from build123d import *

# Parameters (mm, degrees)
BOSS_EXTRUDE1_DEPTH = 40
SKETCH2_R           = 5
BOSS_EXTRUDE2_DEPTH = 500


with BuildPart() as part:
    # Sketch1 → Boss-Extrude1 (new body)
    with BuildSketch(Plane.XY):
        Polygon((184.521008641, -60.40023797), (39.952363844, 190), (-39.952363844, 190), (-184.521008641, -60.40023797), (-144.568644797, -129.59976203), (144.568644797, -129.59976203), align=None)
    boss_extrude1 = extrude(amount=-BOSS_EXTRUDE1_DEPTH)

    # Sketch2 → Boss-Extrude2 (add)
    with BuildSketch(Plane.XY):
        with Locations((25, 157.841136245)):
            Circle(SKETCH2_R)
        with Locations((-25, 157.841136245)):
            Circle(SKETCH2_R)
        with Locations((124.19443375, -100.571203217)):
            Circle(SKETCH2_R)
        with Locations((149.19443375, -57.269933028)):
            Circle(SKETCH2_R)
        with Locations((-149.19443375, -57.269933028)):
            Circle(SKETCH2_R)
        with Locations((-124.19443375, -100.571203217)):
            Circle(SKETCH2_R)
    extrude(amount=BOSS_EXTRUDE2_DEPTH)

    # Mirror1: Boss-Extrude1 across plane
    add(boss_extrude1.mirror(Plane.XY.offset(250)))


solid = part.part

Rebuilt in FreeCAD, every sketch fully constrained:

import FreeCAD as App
import Part
import Sketcher
from FreeCAD import Vector
Q = App.Units.Quantity

doc = App.newDocument("Part")
body = doc.addObject("PartDesign::Body", "Body")

# Sketch on XY plane
sketch1 = doc.addObject("Sketcher::SketchObject", "Sketch")
body.addObject(sketch1)
sketch1.AttachmentSupport = (doc.XY_Plane, [""])
sketch1.MapMode = "FlatFace"
sketch1.addGeometry([
    Part.LineSegment(Vector(185, -60, 0), Vector(40, 190, 0)),  # 0
    Part.LineSegment(Vector(40, 190, 0), Vector(-40, 190, 0)),  # 1
    Part.LineSegment(Vector(-40, 190, 0), Vector(-185, -60, 0)),  # 2
    Part.LineSegment(Vector(-185, -60, 0), Vector(-145, -130, 0)),  # 3
    Part.LineSegment(Vector(-145, -130, 0), Vector(145, -130, 0)),  # 4
    Part.LineSegment(Vector(145, -130, 0), Vector(185, -60, 0)),  # 5
], False)
sketch1.addConstraint([
    Sketcher.Constraint("Coincident", 0, 2, 1, 1),
    Sketcher.Constraint("Coincident", 1, 2, 2, 1),
    Sketcher.Constraint("Coincident", 2, 2, 3, 1),
    Sketcher.Constraint("Coincident", 3, 2, 4, 1),
    Sketcher.Constraint("Coincident", 4, 2, 5, 1),
    Sketcher.Constraint("Coincident", 5, 2, 0, 1),
    Sketcher.Constraint("Horizontal", 1),
    Sketcher.Constraint("Horizontal", 4),
    Sketcher.Constraint("Symmetric", 2, 2, 5, 2, -2),
    Sketcher.Constraint("Parallel", 0, 3),
    Sketcher.Constraint("Parallel", 2, 5),
    Sketcher.Constraint("Equal", 0, 2),
    Sketcher.Constraint("Angle", 0, Q("120 deg")),
    Sketcher.Constraint("DistanceY", -1, 1, 0, 2, 190.0),
    Sketcher.Constraint("DistanceX", 4, 1, 4, 2, 289.13729),
    Sketcher.Constraint("Distance", 0, 289.13729),
    Sketcher.Constraint("DistanceX", 1, 2, 1, 1, 79.904728),
])
pad1 = doc.addObject("PartDesign::Pad", "Pad")
body.addObject(pad1)
pad1.Profile = sketch1
pad1.Length = 40
pad1.Reversed = True

# Sketch on XY plane
sketch2 = doc.addObject("Sketcher::SketchObject", "Sketch001")
body.addObject(sketch2)
sketch2.AttachmentSupport = (doc.XY_Plane, [""])
sketch2.MapMode = "FlatFace"
sketch2.addGeometry([
    Part.Circle(Vector(25, 158, 0), Vector(0, 0, 1), 5),  # 0
    Part.Circle(Vector(-25, 158, 0), Vector(0, 0, 1), 5),  # 1
    Part.Circle(Vector(124, -101, 0), Vector(0, 0, 1), 5),  # 2
    Part.Circle(Vector(149, -57, 0), Vector(0, 0, 1), 5),  # 3
    Part.Circle(Vector(-149, -57, 0), Vector(0, 0, 1), 5),  # 4
    Part.Circle(Vector(-124, -101, 0), Vector(0, 0, 1), 5),  # 5
], False)
sketch2.addConstraint([
    Sketcher.Constraint("Equal", 0, 1),
    Sketcher.Constraint("Equal", 1, 2),
    Sketcher.Constraint("Equal", 2, 3),
    Sketcher.Constraint("Equal", 3, 4),
    Sketcher.Constraint("Equal", 4, 5),
    Sketcher.Constraint("Symmetric", 0, 3, 1, 3, -2),
    Sketcher.Constraint("Symmetric", 3, 3, 4, 3, -2),
    Sketcher.Constraint("Symmetric", 2, 3, 5, 3, -2),
    Sketcher.Constraint("Diameter", 0, 10.0),
    Sketcher.Constraint("DistanceX", -1, 1, 0, 3, 25.0),
    Sketcher.Constraint("DistanceX", 2, 3, 3, 3, 25.0),
    Sketcher.Constraint("DistanceY", 2, 3, 0, 3, 258.412339),
    Sketcher.Constraint("DistanceY", 2, 3, 3, 3, 43.30127),
    Sketcher.Constraint("DistanceY", -1, 1, 0, 3, 157.841136),
    Sketcher.Constraint("DistanceX", -1, 1, 2, 3, 124.194434),
])
pad2 = doc.addObject("PartDesign::Pad", "Pad001")
body.addObject(pad2)
pad2.Profile = sketch2
pad2.Length = 500
doc.recompute()

datumplane = doc.addObject("PartDesign::Plane", "DatumPlane")
body.addObject(datumplane)
datumplane.AttachmentSupport = (doc.XY_Plane, [""])
datumplane.MapMode = "FlatFace"
datumplane.AttachmentOffset = App.Placement(Vector(0, 0, 250), App.Rotation())
mirrored = doc.addObject("PartDesign::Mirrored", "Mirrored")
body.addObject(mirrored)
mirrored.Originals = [pad1]
mirrored.MirrorPlane = (datumplane, [""])
body.Tip = mirrored

doc.recompute()
